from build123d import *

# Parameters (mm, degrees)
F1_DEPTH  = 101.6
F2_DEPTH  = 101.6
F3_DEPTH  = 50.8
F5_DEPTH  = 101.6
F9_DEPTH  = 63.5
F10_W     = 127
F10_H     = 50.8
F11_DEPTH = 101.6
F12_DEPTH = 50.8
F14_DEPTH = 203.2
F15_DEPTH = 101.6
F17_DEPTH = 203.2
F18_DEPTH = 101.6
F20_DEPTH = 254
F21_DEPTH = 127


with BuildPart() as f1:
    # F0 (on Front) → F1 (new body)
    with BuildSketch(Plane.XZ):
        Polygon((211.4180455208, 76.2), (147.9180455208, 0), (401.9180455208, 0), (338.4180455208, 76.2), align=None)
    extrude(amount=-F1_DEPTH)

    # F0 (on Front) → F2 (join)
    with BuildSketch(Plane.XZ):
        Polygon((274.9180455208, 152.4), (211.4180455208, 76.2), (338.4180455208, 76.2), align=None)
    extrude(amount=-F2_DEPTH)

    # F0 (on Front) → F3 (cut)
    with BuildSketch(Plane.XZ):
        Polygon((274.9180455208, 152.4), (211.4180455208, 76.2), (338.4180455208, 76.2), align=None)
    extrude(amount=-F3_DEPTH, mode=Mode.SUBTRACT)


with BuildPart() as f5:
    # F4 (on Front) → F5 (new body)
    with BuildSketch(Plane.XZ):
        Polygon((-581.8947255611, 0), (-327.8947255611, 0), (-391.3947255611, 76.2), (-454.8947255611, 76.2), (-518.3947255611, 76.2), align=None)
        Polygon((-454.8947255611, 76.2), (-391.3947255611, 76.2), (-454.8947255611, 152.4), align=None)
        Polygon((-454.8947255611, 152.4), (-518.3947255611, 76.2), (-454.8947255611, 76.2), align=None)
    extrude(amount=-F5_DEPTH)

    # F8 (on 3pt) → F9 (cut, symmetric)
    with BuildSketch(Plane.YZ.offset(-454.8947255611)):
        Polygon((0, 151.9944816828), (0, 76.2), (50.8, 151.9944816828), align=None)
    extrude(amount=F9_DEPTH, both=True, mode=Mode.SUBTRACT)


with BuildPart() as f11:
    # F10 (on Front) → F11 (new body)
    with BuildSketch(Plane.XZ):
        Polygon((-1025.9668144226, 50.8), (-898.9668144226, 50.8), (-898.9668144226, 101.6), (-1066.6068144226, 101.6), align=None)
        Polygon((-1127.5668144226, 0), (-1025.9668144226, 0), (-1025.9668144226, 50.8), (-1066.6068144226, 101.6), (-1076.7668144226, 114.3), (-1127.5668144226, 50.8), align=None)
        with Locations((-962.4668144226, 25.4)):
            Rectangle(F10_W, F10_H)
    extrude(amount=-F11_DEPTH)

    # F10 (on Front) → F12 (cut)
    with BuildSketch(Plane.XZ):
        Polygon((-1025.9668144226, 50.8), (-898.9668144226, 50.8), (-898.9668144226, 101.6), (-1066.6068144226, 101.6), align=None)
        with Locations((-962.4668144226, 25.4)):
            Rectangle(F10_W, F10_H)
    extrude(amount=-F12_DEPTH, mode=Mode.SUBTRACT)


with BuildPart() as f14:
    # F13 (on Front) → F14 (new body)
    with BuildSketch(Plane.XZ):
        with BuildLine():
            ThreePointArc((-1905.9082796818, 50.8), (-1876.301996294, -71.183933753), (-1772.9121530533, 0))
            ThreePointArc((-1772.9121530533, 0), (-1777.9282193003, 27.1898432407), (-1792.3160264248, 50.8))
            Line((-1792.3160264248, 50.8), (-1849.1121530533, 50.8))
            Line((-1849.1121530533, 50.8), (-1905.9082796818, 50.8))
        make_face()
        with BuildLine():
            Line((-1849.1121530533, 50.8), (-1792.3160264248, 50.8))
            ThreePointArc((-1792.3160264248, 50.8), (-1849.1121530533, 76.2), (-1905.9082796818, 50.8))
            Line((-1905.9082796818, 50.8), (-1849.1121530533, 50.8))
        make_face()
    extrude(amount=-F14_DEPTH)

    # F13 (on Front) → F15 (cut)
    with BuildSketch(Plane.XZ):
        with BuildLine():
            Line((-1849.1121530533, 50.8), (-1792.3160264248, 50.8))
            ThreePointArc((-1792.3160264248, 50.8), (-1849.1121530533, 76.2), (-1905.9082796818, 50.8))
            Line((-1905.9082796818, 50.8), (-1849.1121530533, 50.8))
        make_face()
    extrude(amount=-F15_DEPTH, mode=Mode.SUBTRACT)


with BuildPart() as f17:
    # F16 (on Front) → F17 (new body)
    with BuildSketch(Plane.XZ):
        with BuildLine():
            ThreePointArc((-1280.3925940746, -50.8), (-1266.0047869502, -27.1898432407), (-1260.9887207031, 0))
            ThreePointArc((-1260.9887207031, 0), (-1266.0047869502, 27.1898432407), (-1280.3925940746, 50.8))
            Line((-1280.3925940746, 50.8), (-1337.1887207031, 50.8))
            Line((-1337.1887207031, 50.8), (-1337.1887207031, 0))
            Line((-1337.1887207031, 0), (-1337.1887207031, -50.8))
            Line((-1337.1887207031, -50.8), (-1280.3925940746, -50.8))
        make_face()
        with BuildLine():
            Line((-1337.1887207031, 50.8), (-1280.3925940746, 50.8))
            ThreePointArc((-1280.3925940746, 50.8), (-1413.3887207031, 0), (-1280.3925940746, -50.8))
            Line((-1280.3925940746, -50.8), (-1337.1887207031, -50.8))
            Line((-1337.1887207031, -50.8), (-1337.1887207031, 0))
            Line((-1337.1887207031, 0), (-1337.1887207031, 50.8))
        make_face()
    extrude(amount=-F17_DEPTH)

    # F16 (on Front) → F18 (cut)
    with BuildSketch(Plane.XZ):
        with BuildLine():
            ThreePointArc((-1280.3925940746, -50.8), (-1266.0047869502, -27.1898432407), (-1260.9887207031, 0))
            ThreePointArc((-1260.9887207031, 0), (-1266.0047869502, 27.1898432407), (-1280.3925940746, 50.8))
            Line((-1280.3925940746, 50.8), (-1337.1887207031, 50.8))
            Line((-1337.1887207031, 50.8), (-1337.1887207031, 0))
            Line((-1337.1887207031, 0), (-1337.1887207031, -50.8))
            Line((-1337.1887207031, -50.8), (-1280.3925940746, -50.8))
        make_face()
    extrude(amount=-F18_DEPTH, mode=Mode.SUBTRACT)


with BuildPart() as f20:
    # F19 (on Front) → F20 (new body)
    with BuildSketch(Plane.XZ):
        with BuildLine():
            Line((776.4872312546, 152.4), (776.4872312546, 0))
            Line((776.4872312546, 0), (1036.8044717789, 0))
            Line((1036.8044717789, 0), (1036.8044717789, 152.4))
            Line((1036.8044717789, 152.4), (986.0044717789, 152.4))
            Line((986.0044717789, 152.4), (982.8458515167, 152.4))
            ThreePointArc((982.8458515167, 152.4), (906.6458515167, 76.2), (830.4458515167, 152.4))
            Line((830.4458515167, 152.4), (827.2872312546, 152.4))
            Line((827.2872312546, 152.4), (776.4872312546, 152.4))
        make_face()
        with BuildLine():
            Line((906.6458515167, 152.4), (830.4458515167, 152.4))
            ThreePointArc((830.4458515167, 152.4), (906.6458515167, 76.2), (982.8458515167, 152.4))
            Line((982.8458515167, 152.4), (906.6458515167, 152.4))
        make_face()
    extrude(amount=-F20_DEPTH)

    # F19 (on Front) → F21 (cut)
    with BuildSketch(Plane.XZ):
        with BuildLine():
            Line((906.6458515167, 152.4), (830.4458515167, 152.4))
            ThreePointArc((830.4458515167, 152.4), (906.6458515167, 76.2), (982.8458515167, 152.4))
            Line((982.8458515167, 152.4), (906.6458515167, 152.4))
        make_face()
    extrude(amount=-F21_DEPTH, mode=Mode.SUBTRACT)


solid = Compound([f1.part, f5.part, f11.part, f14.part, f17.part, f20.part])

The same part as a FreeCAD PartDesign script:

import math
import FreeCAD as App
import Part
import Sketcher
from FreeCAD import Vector
Q = App.Units.Quantity


def add_polygon(sketch, points):
    """Adds a closed chain of lines whose ends are joined by coincident constraints."""
    first, n = sketch.GeometryCount, len(points)
    for a, b in zip(points, points[1:] + points[:1]):
        sketch.addGeometry(Part.LineSegment(App.Vector(*a, 0), App.Vector(*b, 0)), False)
    for i in range(n):
        sketch.addConstraint(Sketcher.Constraint("Coincident", first + i, 2, first + (i + 1) % n, 1))

doc = App.newDocument("Part")
params = doc.addObject("Spreadsheet::Sheet", "Params")
for row, (alias, value) in enumerate([
    ("sketch1_width", "10 in"),
    ("sketch1_width2", "5 in"),
    ("pad1_length", "4 in"),
    ("sketch2_width", "5 in"),
    ("pad2_length", "4 in"),
    ("sketch3_width", "5 in"),
    ("pocket1_length", "2 in"),
    ("sketch4_width", "10 in"),
    ("pad3_length", "4 in"),
    ("sketch5_width", "2 in"),
    ("pocket2_length", "5 in"),
    ("sketch6_width", "9 in"),
    ("sketch6_height", "2 in"),
    ("sketch6_height2", "4 in"),
    ("sketch6_width2", "6.6 in"),
    ("pad4_length", "4 in"),
    ("sketch7_width", "5 in"),
    ("sketch7_height", "2 in"),
    ("sketch7_height2", "4 in"),
    ("sketch7_width2", "6.6 in"),
    ("pocket3_length", "2 in"),
    ("sketch8_radius", "3 in"),
    ("pad5_length", "8 in"),
    ("sketch9_radius", "3 in"),
    ("pocket4_length", "4 in"),
    ("sketch10_radius", "3 in"),
    ("pad6_length", "8 in"),
    ("sketch11_radius", "3 in"),
    ("sketch11_height", "4 in"),
    ("pocket5_length", "4 in"),
    ("sketch12_height", "6 in"),
    ("pad7_length", "10 in"),
    ("sketch13_radius", "3 in"),
    ("pocket6_length", "5 in"),
], start=1):
    params.set(f"A{row}", alias)
    params.set(f"B{row}", "=" + value)
    params.setAlias(f"B{row}", alias)

body = doc.addObject("PartDesign::Body", "Body")

sketch1 = doc.addObject("Sketcher::SketchObject", "Sketch")
body.addObject(sketch1)
sketch1.AttachmentSupport = (doc.XZ_Plane, [""])
sketch1.MapMode = "FlatFace"
add_polygon(sketch1, [(211.418046, 76.2), (147.918046, 0), (401.918046, 0), (338.418046, 76.2)])
sketch1.addConstraint([
    Sketcher.Constraint("Horizontal", 1),
    Sketcher.Constraint("Horizontal", 3),
    Sketcher.Constraint("PointOnObject", 0, 2, -1),
    Sketcher.Constraint("Equal", 0, 2),
    Sketcher.Constraint("DistanceX", 1, 1, 1, 2, Q("10 in")),
    Sketcher.Constraint("DistanceX", 3, 2, 3, 1, Q("5 in")),
    Sketcher.Constraint("DistanceY", -1, 1, 2, 2, Q("3 in")),
    Sketcher.Constraint("DistanceX", -1, 1, 0, 2, Q("147.918046 mm")),
])
sketch1.setExpression("Constraints[8]", "Params.sketch1_width")
sketch1.setExpression("Constraints[9]", "Params.sketch1_width2")
pad1 = doc.addObject("PartDesign::Pad", "Pad")
body.addObject(pad1)
pad1.Profile = sketch1
pad1.setExpression("Length", "Params.pad1_length")
pad1.Reversed = True

sketch2 = doc.addObject("Sketcher::SketchObject", "Sketch001")
body.addObject(sketch2)
sketch2.AttachmentSupport = (doc.XZ_Plane, [""])
sketch2.MapMode = "FlatFace"
add_polygon(sketch2, [(274.918046, 152.4), (211.418046, 76.2), (338.418046, 76.2)])
sketch2.addConstraint([
    Sketcher.Constraint("Horizontal", 1),
    Sketcher.Constraint("Equal", 0, 2),
    Sketcher.Constraint("DistanceX", 1, 1, 1, 2, Q("5 in")),
    Sketcher.Constraint("DistanceY", -1, 1, 0, 2, Q("3 in")),
    Sketcher.Constraint("DistanceY", -1, 1, 2, 2, Q("6 in")),
    Sketcher.Constraint("DistanceX", -1, 1, 0, 2, Q("211.418046 mm")),
])
sketch2.setExpression("Constraints[5]", "Params.sketch2_width")
pad2 = doc.addObject("PartDesign::Pad", "Pad001")
body.addObject(pad2)
pad2.Profile = sketch2
pad2.setExpression("Length", "Params.pad2_length")
pad2.Reversed = True

sketch3 = doc.addObject("Sketcher::SketchObject", "Sketch002")
body.addObject(sketch3)
sketch3.AttachmentSupport = (doc.XZ_Plane, [""])
sketch3.MapMode = "FlatFace"
add_polygon(sketch3, [(274.918046, 152.4), (211.418046, 76.2), (338.418046, 76.2)])
sketch3.addConstraint([
    Sketcher.Constraint("Horizontal", 1),
    Sketcher.Constraint("Equal", 0, 2),
    Sketcher.Constraint("DistanceX", 1, 1, 1, 2, Q("5 in")),
    Sketcher.Constraint("DistanceY", -1, 1, 0, 2, Q("3 in")),
    Sketcher.Constraint("DistanceY", -1, 1, 2, 2, Q("6 in")),
    Sketcher.Constraint("DistanceX", -1, 1, 0, 2, Q("211.418046 mm")),
])
sketch3.setExpression("Constraints[5]", "Params.sketch3_width")
pocket1 = doc.addObject("PartDesign::Pocket", "Pocket")
body.addObject(pocket1)
pocket1.Profile = sketch3
pocket1.setExpression("Length", "Params.pocket1_length")
body2 = doc.addObject("PartDesign::Body", "Body001")

sketch4 = doc.addObject("Sketcher::SketchObject", "Sketch003")
body2.addObject(sketch4)
sketch4.AttachmentSupport = (doc.getObject("XZ_Plane001"), [""])
sketch4.MapMode = "FlatFace"
add_polygon(sketch4, [(-581.894726, 0), (-327.894726, 0), (-454.894726, 152.4)])
sketch4.addConstraint([
    Sketcher.Constraint("Horizontal", 0),
    Sketcher.Constraint("PointOnObject", 0, 2, -1),
    Sketcher.Constraint("Equal", 1, 2),
    Sketcher.Constraint("DistanceX", 0, 1, 0, 2, Q("10 in")),
    Sketcher.Constraint("DistanceY", -1, 1, 1, 2, Q("6 in")),
    Sketcher.Constraint("DistanceX", 0, 2, -1, 1, Q("327.894726 mm")),
])
sketch4.setExpression("Constraints[6]", "Params.sketch4_width")
pad3 = doc.addObject("PartDesign::Pad", "Pad002")
body2.addObject(pad3)
pad3.Profile = sketch4
pad3.setExpression("Length", "Params.pad3_length")
pad3.Reversed = True

sketch5 = doc.addObject("Sketcher::SketchObject", "Sketch004")
body2.addObject(sketch5)
sketch5.AttachmentSupport = (doc.getObject("YZ_Plane001"), [""])
sketch5.MapMode = "FlatFace"
sketch5.AttachmentOffset = App.Placement(Vector(0, 0, -454.894726), App.Rotation())
add_polygon(sketch5, [(0, 151.994482), (0, 76.2), (50.8, 151.994482)])
sketch5.addConstraint([
    Sketcher.Constraint("Vertical", 0),
    Sketcher.Constraint("Horizontal", 2),
    Sketcher.Constraint("PointOnObject", 0, 2, -2),
    Sketcher.Constraint("DistanceX", 2, 2, 2, 1, Q("2 in")),
    Sketcher.Constraint("DistanceY", -1, 1, 0, 2, Q("3 in")),
    Sketcher.Constraint("DistanceY", 0, 2, 0, 1, Q("75.794482 mm")),
])
sketch5.setExpression("Constraints[6]", "Params.sketch5_width")
pocket2 = doc.addObject("PartDesign::Pocket", "Pocket001")
body2.addObject(pocket2)
pocket2.Profile = sketch5
pocket2.setExpression("Length", "Params.pocket2_length")
pocket2.Midplane = True
body3 = doc.addObject("PartDesign::Body", "Body002")

sketch6 = doc.addObject("Sketcher::SketchObject", "Sketch005")
body3.addObject(sketch6)
sketch6.AttachmentSupport = (doc.getObject("XZ_Plane002"), [""])
sketch6.MapMode = "FlatFace"
add_polygon(sketch6, [(-898.966814, 101.6), (-1066.606814, 101.6), (-1076.766814, 114.3), (-1127.566814, 50.8), (-1127.566814, 0), (-898.966814, 0)])
sketch6.addConstraint([
    Sketcher.Constraint("Horizontal", 0),
    Sketcher.Constraint("Vertical", 3),
    Sketcher.Constraint("Horizontal", 4),
    Sketcher.Constraint("Vertical", 5),
    Sketcher.Constraint("PointOnObject", 3, 2, -1),
    Sketcher.Constraint("DistanceX", 4, 1, 4, 2, Q("9 in")),
    Sketcher.Constraint("DistanceY", 3, 2, 3, 1, Q("2 in")),
    Sketcher.Constraint("DistanceY", 5, 1, 5, 2, Q("4 in")),
    Sketcher.Constraint("DistanceX", 0, 2, 0, 1, Q("6.6 in")),
    Sketcher.Constraint("DistanceX", 2, 2, 1, 2, Q("2 in")),
    Sketcher.Constraint("DistanceY", -1, 1, 1, 2, Q("4.5 in")),
    Sketcher.Constraint("DistanceX", 0, 2, -1, 1, Q("1066.606814 mm")),
])
sketch6.setExpression("Constraints[11]", "Params.sketch6_width")
sketch6.setExpression("Constraints[12]", "Params.sketch6_height")
sketch6.setExpression("Constraints[13]", "Params.sketch6_height2")
sketch6.setExpression("Constraints[14]", "Params.sketch6_width2")
pad4 = doc.addObject("PartDesign::Pad", "Pad003")
body3.addObject(pad4)
pad4.Profile = sketch6
pad4.setExpression("Length", "Params.pad4_length")
pad4.Reversed = True

sketch7 = doc.addObject("Sketcher::SketchObject", "Sketch006")
body3.addObject(sketch7)
sketch7.AttachmentSupport = (doc.getObject("XZ_Plane002"), [""])
sketch7.MapMode = "FlatFace"
add_polygon(sketch7, [(-898.966814, 101.6), (-1066.606814, 101.6), (-1025.966814, 50.8), (-1025.966814, 0), (-898.966814, 0)])
sketch7.addConstraint([
    Sketcher.Constraint("Horizontal", 0),
    Sketcher.Constraint("Vertical", 2),
    Sketcher.Constraint("Horizontal", 3),
    Sketcher.Constraint("Vertical", 4),
    Sketcher.Constraint("PointOnObject", 2, 2, -1),
    Sketcher.Constraint("DistanceX", 3, 1, 3, 2, Q("5 in")),
    Sketcher.Constraint("DistanceY", 2, 2, 2, 1, Q("2 in")),
    Sketcher.Constraint("DistanceY", 4, 1, 4, 2, Q("4 in")),
    Sketcher.Constraint("DistanceX", 0, 2, 0, 1, Q("6.6 in")),
    Sketcher.Constraint("DistanceX", 0, 2, -1, 1, Q("1066.606814 mm")),
])
sketch7.setExpression("Constraints[10]", "Params.sketch7_width")
sketch7.setExpression("Constraints[11]", "Params.sketch7_height")
sketch7.setExpression("Constraints[12]", "Params.sketch7_height2")
sketch7.setExpression("Constraints[13]", "Params.sketch7_width2")
pocket3 = doc.addObject("PartDesign::Pocket", "Pocket002")
body3.addObject(pocket3)
pocket3.Profile = sketch7
pocket3.setExpression("Length", "Params.pocket3_length")
body4 = doc.addObject("PartDesign::Body", "Body003")

sketch8 = doc.addObject("Sketcher::SketchObject", "Sketch007")
body4.addObject(sketch8)
sketch8.AttachmentSupport = (doc.getObject("XZ_Plane003"), [""])
sketch8.MapMode = "FlatFace"
sketch8.addGeometry([
    Part.ArcOfCircle(Part.Circle(Vector(-1849.112153, 0, 0), Vector(0, 0, 1), 76.2), math.radians(0), math.radians(41.810315)),
    Part.ArcOfCircle(Part.Circle(Vector(-1849.112153, 0, 0), Vector(0, 0, 1), 76.2), math.radians(41.810315), math.radians(360)),
], False)
sketch8.addConstraint([
    Sketcher.Constraint("Tangent", 0, 1, 1, 2),
    Sketcher.Constraint("Coincident", 1, 1, 0, 2),
    Sketcher.Constraint("PointOnObject", 0, 3, -1),
    Sketcher.Constraint("PointOnObject", 0, 1, -1),
    Sketcher.Constraint("Radius", 0, Q("3 in")),
    Sketcher.Constraint("DistanceY", -1, 1, 1, 1, Q("2 in")),
    Sketcher.Constraint("DistanceX", 0, 3, -1, 1, Q("1849.112153 mm")),
])
sketch8.setExpression("Constraints[4]", "Params.sketch8_radius")
pad5 = doc.addObject("PartDesign::Pad", "Pad004")
body4.addObject(pad5)
pad5.Profile = sketch8
pad5.setExpression("Length", "Params.pad5_length")
pad5.Reversed = True

sketch9 = doc.addObject("Sketcher::SketchObject", "Sketch008")
body4.addObject(sketch9)
sketch9.AttachmentSupport = (doc.getObject("XZ_Plane003"), [""])
sketch9.MapMode = "FlatFace"
sketch9.addGeometry([
    Part.ArcOfCircle(Part.Circle(Vector(-1849.112153, 0, 0), Vector(0, 0, 1), 76.2), math.radians(41.810315), math.radians(138.189685)),
    Part.LineSegment(Vector(-1905.90828, 50.8, 0), Vector(-1792.316026, 50.8, 0)),
], False)
sketch9.addConstraint([
    Sketcher.Constraint("Coincident", 0, 1, 1, 2),
    Sketcher.Constraint("Coincident", 1, 1, 0, 2),
    Sketcher.Constraint("Horizontal", 1),
    Sketcher.Constraint("PointOnObject", 0, 3, -1),
    Sketcher.Constraint("Radius", 0, Q("3 in")),
    Sketcher.Constraint("DistanceY", -1, 1, 0, 1, Q("2 in")),
    Sketcher.Constraint("DistanceX", 1, 1, -1, 1, Q("1905.90828 mm")),
])
sketch9.setExpression("Constraints[4]", "Params.sketch9_radius")
pocket4 = doc.addObject("PartDesign::Pocket", "Pocket003")
body4.addObject(pocket4)
pocket4.Profile = sketch9
pocket4.setExpression("Length", "Params.pocket4_length")
body5 = doc.addObject("PartDesign::Body", "Body004")

sketch10 = doc.addObject("Sketcher::SketchObject", "Sketch009")
body5.addObject(sketch10)
sketch10.AttachmentSupport = (doc.getObject("XZ_Plane004"), [""])
sketch10.MapMode = "FlatFace"
sketch10.addGeometry([
    Part.ArcOfCircle(Part.Circle(Vector(-1337.188721, 0, 0), Vector(0, 0, 1), 76.2), math.radians(-41.810315), math.radians(0)),
    Part.ArcOfCircle(Part.Circle(Vector(-1337.188721, 0, 0), Vector(0, 0, 1), 76.2), math.radians(0), math.radians(41.810315)),
    Part.ArcOfCircle(Part.Circle(Vector(-1337.188721, 0, 0), Vector(0, 0, 1), 76.2), math.radians(41.810315), math.radians(318.189685)),
], False)
sketch10.addConstraint([
    Sketcher.Constraint("Tangent", 0, 2, 1, 1),
    Sketcher.Constraint("Tangent", 1, 2, 2, 1),
    Sketcher.Constraint("Tangent", 2, 2, 0, 1),
    Sketcher.Constraint("Symmetric", 1, 2, 2, 2, -1),
    Sketcher.Constraint("PointOnObject", 0, 2, -1),
    Sketcher.Constraint("Radius", 0, Q("3 in")),
    Sketcher.Constraint("DistanceY", -1, 1, 1, 2, Q("2 in")),
    Sketcher.Constraint("DistanceX", 0, 3, -1, 1, Q("1337.188721 mm")),
])
sketch10.setExpression("Constraints[5]", "Params.sketch10_radius")
pad6 = doc.addObject("PartDesign::Pad", "Pad005")
body5.addObject(pad6)
pad6.Profile = sketch10
pad6.setExpression("Length", "Params.pad6_length")
pad6.Reversed = True

sketch11 = doc.addObject("Sketcher::SketchObject", "Sketch010")
body5.addObject(sketch11)
sketch11.AttachmentSupport = (doc.getObject("XZ_Plane004"), [""])
sketch11.MapMode = "FlatFace"
sketch11.addGeometry([
    Part.ArcOfCircle(Part.Circle(Vector(-1337.188721, 0, 0), Vector(0, 0, 1), 76.2), math.radians(-41.810315), math.radians(0)),
    Part.ArcOfCircle(Part.Circle(Vector(-1337.188721, 0, 0), Vector(0, 0, 1), 76.2), math.radians(0), math.radians(41.810315)),
    Part.LineSegment(Vector(-1280.392594, 50.8, 0), Vector(-1337.188721, 50.8, 0)),
    Part.LineSegment(Vector(-1337.188721, 50.8, 0), Vector(-1337.188721, -50.8, 0)),
    Part.LineSegment(Vector(-1337.188721, -50.8, 0), Vector(-1280.392594, -50.8, 0)),
], False)
sketch11.addConstraint([
    Sketcher.Constraint("Tangent", 0, 2, 1, 1),
    Sketcher.Constraint("Coincident", 1, 2, 2, 1),
    Sketcher.Constraint("Coincident", 2, 2, 3, 1),
    Sketcher.Constraint("Coincident", 3, 2, 4, 1),
    Sketcher.Constraint("Coincident", 4, 2, 0, 1),
    Sketcher.Constraint("Horizontal", 2),
    Sketcher.Constraint("Vertical", 3),
    Sketcher.Constraint("Horizontal", 4),
    Sketcher.Constraint("Equal", 0, 1),
    Sketcher.Constraint("Symmetric", 1, 2, 4, 2, -1),
    Sketcher.Constraint("PointOnObject", 0, 2, -1),
    Sketcher.Constraint("Vertical", 1, 3, 2, 2),
    Sketcher.Constraint("Radius", 0, Q("3 in")),
    Sketcher.Constraint("DistanceY", 3, 2, 3, 1, Q("4 in")),
    Sketcher.Constraint("DistanceX", 0, 3, -1, 1, Q("1337.188721 mm")),
])
sketch11.setExpression("Constraints[12]", "Params.sketch11_radius")
sketch11.setExpression("Constraints[13]", "Params.sketch11_height")
pocket5 = doc.addObject("PartDesign::Pocket", "Pocket004")
body5.addObject(pocket5)
pocket5.Profile = sketch11
pocket5.setExpression("Length", "Params.pocket5_length")
body6 = doc.addObject("PartDesign::Body", "Body005")

sketch12 = doc.addObject("Sketcher::SketchObject", "Sketch011")
body6.addObject(sketch12)
sketch12.AttachmentSupport = (doc.getObject("XZ_Plane005"), [""])
sketch12.MapMode = "FlatFace"
add_polygon(sketch12, [(776.487231, 152.4), (776.487231, 0), (1036.804472, 0), (1036.804472, 152.4)])
sketch12.addConstraint([
    Sketcher.Constraint("Vertical", 0),
    Sketcher.Constraint("Horizontal", 1),
    Sketcher.Constraint("Vertical", 2),
    Sketcher.Constraint("Horizontal", 3),
    Sketcher.Constraint("PointOnObject", 0, 2, -1),
    Sketcher.Constraint("DistanceY", 0, 2, 0, 1, Q("6 in")),
    Sketcher.Constraint("DistanceX", 1, 1, 1, 2, Q("260.317241 mm")),
    Sketcher.Constraint("DistanceX", -1, 1, 0, 2, Q("776.487231 mm")),
])
sketch12.setExpression("Constraints[9]", "Params.sketch12_height")
pad7 = doc.addObject("PartDesign::Pad", "Pad006")
body6.addObject(pad7)
pad7.Profile = sketch12
pad7.setExpression("Length", "Params.pad7_length")
pad7.Reversed = True

sketch13 = doc.addObject("Sketcher::SketchObject", "Sketch012")
body6.addObject(sketch13)
sketch13.AttachmentSupport = (doc.getObject("XZ_Plane005"), [""])
sketch13.MapMode = "FlatFace"
sketch13.addGeometry([
    Part.ArcOfCircle(Part.Circle(Vector(906.645852, 152.4, 0), Vector(0, 0, 1), 76.2), math.radians(180), math.radians(360)),
    Part.LineSegment(Vector(982.845852, 152.4, 0), Vector(830.445852, 152.4, 0)),
], False)
sketch13.addConstraint([
    Sketcher.Constraint("Coincident", 0, 1, 1, 2),
    Sketcher.Constraint("Coincident", 1, 1, 0, 2),
    Sketcher.Constraint("Horizontal", 1),
    Sketcher.Constraint("Radius", 0, Q("3 in")),
    Sketcher.Constraint("DistanceY", -1, 1, 0, 3, Q("6 in")),
    Sketcher.Constraint("DistanceY", -1, 1, 0, 1, Q("6 in")),
    Sketcher.Constraint("DistanceX", -1, 1, 0, 3, Q("906.645852 mm")),
])
sketch13.setExpression("Constraints[3]", "Params.sketch13_radius")
pocket6 = doc.addObject("PartDesign::Pocket", "Pocket005")
body6.addObject(pocket6)
pocket6.Profile = sketch13
pocket6.setExpression("Length", "Params.pocket6_length")

doc.recompute()
